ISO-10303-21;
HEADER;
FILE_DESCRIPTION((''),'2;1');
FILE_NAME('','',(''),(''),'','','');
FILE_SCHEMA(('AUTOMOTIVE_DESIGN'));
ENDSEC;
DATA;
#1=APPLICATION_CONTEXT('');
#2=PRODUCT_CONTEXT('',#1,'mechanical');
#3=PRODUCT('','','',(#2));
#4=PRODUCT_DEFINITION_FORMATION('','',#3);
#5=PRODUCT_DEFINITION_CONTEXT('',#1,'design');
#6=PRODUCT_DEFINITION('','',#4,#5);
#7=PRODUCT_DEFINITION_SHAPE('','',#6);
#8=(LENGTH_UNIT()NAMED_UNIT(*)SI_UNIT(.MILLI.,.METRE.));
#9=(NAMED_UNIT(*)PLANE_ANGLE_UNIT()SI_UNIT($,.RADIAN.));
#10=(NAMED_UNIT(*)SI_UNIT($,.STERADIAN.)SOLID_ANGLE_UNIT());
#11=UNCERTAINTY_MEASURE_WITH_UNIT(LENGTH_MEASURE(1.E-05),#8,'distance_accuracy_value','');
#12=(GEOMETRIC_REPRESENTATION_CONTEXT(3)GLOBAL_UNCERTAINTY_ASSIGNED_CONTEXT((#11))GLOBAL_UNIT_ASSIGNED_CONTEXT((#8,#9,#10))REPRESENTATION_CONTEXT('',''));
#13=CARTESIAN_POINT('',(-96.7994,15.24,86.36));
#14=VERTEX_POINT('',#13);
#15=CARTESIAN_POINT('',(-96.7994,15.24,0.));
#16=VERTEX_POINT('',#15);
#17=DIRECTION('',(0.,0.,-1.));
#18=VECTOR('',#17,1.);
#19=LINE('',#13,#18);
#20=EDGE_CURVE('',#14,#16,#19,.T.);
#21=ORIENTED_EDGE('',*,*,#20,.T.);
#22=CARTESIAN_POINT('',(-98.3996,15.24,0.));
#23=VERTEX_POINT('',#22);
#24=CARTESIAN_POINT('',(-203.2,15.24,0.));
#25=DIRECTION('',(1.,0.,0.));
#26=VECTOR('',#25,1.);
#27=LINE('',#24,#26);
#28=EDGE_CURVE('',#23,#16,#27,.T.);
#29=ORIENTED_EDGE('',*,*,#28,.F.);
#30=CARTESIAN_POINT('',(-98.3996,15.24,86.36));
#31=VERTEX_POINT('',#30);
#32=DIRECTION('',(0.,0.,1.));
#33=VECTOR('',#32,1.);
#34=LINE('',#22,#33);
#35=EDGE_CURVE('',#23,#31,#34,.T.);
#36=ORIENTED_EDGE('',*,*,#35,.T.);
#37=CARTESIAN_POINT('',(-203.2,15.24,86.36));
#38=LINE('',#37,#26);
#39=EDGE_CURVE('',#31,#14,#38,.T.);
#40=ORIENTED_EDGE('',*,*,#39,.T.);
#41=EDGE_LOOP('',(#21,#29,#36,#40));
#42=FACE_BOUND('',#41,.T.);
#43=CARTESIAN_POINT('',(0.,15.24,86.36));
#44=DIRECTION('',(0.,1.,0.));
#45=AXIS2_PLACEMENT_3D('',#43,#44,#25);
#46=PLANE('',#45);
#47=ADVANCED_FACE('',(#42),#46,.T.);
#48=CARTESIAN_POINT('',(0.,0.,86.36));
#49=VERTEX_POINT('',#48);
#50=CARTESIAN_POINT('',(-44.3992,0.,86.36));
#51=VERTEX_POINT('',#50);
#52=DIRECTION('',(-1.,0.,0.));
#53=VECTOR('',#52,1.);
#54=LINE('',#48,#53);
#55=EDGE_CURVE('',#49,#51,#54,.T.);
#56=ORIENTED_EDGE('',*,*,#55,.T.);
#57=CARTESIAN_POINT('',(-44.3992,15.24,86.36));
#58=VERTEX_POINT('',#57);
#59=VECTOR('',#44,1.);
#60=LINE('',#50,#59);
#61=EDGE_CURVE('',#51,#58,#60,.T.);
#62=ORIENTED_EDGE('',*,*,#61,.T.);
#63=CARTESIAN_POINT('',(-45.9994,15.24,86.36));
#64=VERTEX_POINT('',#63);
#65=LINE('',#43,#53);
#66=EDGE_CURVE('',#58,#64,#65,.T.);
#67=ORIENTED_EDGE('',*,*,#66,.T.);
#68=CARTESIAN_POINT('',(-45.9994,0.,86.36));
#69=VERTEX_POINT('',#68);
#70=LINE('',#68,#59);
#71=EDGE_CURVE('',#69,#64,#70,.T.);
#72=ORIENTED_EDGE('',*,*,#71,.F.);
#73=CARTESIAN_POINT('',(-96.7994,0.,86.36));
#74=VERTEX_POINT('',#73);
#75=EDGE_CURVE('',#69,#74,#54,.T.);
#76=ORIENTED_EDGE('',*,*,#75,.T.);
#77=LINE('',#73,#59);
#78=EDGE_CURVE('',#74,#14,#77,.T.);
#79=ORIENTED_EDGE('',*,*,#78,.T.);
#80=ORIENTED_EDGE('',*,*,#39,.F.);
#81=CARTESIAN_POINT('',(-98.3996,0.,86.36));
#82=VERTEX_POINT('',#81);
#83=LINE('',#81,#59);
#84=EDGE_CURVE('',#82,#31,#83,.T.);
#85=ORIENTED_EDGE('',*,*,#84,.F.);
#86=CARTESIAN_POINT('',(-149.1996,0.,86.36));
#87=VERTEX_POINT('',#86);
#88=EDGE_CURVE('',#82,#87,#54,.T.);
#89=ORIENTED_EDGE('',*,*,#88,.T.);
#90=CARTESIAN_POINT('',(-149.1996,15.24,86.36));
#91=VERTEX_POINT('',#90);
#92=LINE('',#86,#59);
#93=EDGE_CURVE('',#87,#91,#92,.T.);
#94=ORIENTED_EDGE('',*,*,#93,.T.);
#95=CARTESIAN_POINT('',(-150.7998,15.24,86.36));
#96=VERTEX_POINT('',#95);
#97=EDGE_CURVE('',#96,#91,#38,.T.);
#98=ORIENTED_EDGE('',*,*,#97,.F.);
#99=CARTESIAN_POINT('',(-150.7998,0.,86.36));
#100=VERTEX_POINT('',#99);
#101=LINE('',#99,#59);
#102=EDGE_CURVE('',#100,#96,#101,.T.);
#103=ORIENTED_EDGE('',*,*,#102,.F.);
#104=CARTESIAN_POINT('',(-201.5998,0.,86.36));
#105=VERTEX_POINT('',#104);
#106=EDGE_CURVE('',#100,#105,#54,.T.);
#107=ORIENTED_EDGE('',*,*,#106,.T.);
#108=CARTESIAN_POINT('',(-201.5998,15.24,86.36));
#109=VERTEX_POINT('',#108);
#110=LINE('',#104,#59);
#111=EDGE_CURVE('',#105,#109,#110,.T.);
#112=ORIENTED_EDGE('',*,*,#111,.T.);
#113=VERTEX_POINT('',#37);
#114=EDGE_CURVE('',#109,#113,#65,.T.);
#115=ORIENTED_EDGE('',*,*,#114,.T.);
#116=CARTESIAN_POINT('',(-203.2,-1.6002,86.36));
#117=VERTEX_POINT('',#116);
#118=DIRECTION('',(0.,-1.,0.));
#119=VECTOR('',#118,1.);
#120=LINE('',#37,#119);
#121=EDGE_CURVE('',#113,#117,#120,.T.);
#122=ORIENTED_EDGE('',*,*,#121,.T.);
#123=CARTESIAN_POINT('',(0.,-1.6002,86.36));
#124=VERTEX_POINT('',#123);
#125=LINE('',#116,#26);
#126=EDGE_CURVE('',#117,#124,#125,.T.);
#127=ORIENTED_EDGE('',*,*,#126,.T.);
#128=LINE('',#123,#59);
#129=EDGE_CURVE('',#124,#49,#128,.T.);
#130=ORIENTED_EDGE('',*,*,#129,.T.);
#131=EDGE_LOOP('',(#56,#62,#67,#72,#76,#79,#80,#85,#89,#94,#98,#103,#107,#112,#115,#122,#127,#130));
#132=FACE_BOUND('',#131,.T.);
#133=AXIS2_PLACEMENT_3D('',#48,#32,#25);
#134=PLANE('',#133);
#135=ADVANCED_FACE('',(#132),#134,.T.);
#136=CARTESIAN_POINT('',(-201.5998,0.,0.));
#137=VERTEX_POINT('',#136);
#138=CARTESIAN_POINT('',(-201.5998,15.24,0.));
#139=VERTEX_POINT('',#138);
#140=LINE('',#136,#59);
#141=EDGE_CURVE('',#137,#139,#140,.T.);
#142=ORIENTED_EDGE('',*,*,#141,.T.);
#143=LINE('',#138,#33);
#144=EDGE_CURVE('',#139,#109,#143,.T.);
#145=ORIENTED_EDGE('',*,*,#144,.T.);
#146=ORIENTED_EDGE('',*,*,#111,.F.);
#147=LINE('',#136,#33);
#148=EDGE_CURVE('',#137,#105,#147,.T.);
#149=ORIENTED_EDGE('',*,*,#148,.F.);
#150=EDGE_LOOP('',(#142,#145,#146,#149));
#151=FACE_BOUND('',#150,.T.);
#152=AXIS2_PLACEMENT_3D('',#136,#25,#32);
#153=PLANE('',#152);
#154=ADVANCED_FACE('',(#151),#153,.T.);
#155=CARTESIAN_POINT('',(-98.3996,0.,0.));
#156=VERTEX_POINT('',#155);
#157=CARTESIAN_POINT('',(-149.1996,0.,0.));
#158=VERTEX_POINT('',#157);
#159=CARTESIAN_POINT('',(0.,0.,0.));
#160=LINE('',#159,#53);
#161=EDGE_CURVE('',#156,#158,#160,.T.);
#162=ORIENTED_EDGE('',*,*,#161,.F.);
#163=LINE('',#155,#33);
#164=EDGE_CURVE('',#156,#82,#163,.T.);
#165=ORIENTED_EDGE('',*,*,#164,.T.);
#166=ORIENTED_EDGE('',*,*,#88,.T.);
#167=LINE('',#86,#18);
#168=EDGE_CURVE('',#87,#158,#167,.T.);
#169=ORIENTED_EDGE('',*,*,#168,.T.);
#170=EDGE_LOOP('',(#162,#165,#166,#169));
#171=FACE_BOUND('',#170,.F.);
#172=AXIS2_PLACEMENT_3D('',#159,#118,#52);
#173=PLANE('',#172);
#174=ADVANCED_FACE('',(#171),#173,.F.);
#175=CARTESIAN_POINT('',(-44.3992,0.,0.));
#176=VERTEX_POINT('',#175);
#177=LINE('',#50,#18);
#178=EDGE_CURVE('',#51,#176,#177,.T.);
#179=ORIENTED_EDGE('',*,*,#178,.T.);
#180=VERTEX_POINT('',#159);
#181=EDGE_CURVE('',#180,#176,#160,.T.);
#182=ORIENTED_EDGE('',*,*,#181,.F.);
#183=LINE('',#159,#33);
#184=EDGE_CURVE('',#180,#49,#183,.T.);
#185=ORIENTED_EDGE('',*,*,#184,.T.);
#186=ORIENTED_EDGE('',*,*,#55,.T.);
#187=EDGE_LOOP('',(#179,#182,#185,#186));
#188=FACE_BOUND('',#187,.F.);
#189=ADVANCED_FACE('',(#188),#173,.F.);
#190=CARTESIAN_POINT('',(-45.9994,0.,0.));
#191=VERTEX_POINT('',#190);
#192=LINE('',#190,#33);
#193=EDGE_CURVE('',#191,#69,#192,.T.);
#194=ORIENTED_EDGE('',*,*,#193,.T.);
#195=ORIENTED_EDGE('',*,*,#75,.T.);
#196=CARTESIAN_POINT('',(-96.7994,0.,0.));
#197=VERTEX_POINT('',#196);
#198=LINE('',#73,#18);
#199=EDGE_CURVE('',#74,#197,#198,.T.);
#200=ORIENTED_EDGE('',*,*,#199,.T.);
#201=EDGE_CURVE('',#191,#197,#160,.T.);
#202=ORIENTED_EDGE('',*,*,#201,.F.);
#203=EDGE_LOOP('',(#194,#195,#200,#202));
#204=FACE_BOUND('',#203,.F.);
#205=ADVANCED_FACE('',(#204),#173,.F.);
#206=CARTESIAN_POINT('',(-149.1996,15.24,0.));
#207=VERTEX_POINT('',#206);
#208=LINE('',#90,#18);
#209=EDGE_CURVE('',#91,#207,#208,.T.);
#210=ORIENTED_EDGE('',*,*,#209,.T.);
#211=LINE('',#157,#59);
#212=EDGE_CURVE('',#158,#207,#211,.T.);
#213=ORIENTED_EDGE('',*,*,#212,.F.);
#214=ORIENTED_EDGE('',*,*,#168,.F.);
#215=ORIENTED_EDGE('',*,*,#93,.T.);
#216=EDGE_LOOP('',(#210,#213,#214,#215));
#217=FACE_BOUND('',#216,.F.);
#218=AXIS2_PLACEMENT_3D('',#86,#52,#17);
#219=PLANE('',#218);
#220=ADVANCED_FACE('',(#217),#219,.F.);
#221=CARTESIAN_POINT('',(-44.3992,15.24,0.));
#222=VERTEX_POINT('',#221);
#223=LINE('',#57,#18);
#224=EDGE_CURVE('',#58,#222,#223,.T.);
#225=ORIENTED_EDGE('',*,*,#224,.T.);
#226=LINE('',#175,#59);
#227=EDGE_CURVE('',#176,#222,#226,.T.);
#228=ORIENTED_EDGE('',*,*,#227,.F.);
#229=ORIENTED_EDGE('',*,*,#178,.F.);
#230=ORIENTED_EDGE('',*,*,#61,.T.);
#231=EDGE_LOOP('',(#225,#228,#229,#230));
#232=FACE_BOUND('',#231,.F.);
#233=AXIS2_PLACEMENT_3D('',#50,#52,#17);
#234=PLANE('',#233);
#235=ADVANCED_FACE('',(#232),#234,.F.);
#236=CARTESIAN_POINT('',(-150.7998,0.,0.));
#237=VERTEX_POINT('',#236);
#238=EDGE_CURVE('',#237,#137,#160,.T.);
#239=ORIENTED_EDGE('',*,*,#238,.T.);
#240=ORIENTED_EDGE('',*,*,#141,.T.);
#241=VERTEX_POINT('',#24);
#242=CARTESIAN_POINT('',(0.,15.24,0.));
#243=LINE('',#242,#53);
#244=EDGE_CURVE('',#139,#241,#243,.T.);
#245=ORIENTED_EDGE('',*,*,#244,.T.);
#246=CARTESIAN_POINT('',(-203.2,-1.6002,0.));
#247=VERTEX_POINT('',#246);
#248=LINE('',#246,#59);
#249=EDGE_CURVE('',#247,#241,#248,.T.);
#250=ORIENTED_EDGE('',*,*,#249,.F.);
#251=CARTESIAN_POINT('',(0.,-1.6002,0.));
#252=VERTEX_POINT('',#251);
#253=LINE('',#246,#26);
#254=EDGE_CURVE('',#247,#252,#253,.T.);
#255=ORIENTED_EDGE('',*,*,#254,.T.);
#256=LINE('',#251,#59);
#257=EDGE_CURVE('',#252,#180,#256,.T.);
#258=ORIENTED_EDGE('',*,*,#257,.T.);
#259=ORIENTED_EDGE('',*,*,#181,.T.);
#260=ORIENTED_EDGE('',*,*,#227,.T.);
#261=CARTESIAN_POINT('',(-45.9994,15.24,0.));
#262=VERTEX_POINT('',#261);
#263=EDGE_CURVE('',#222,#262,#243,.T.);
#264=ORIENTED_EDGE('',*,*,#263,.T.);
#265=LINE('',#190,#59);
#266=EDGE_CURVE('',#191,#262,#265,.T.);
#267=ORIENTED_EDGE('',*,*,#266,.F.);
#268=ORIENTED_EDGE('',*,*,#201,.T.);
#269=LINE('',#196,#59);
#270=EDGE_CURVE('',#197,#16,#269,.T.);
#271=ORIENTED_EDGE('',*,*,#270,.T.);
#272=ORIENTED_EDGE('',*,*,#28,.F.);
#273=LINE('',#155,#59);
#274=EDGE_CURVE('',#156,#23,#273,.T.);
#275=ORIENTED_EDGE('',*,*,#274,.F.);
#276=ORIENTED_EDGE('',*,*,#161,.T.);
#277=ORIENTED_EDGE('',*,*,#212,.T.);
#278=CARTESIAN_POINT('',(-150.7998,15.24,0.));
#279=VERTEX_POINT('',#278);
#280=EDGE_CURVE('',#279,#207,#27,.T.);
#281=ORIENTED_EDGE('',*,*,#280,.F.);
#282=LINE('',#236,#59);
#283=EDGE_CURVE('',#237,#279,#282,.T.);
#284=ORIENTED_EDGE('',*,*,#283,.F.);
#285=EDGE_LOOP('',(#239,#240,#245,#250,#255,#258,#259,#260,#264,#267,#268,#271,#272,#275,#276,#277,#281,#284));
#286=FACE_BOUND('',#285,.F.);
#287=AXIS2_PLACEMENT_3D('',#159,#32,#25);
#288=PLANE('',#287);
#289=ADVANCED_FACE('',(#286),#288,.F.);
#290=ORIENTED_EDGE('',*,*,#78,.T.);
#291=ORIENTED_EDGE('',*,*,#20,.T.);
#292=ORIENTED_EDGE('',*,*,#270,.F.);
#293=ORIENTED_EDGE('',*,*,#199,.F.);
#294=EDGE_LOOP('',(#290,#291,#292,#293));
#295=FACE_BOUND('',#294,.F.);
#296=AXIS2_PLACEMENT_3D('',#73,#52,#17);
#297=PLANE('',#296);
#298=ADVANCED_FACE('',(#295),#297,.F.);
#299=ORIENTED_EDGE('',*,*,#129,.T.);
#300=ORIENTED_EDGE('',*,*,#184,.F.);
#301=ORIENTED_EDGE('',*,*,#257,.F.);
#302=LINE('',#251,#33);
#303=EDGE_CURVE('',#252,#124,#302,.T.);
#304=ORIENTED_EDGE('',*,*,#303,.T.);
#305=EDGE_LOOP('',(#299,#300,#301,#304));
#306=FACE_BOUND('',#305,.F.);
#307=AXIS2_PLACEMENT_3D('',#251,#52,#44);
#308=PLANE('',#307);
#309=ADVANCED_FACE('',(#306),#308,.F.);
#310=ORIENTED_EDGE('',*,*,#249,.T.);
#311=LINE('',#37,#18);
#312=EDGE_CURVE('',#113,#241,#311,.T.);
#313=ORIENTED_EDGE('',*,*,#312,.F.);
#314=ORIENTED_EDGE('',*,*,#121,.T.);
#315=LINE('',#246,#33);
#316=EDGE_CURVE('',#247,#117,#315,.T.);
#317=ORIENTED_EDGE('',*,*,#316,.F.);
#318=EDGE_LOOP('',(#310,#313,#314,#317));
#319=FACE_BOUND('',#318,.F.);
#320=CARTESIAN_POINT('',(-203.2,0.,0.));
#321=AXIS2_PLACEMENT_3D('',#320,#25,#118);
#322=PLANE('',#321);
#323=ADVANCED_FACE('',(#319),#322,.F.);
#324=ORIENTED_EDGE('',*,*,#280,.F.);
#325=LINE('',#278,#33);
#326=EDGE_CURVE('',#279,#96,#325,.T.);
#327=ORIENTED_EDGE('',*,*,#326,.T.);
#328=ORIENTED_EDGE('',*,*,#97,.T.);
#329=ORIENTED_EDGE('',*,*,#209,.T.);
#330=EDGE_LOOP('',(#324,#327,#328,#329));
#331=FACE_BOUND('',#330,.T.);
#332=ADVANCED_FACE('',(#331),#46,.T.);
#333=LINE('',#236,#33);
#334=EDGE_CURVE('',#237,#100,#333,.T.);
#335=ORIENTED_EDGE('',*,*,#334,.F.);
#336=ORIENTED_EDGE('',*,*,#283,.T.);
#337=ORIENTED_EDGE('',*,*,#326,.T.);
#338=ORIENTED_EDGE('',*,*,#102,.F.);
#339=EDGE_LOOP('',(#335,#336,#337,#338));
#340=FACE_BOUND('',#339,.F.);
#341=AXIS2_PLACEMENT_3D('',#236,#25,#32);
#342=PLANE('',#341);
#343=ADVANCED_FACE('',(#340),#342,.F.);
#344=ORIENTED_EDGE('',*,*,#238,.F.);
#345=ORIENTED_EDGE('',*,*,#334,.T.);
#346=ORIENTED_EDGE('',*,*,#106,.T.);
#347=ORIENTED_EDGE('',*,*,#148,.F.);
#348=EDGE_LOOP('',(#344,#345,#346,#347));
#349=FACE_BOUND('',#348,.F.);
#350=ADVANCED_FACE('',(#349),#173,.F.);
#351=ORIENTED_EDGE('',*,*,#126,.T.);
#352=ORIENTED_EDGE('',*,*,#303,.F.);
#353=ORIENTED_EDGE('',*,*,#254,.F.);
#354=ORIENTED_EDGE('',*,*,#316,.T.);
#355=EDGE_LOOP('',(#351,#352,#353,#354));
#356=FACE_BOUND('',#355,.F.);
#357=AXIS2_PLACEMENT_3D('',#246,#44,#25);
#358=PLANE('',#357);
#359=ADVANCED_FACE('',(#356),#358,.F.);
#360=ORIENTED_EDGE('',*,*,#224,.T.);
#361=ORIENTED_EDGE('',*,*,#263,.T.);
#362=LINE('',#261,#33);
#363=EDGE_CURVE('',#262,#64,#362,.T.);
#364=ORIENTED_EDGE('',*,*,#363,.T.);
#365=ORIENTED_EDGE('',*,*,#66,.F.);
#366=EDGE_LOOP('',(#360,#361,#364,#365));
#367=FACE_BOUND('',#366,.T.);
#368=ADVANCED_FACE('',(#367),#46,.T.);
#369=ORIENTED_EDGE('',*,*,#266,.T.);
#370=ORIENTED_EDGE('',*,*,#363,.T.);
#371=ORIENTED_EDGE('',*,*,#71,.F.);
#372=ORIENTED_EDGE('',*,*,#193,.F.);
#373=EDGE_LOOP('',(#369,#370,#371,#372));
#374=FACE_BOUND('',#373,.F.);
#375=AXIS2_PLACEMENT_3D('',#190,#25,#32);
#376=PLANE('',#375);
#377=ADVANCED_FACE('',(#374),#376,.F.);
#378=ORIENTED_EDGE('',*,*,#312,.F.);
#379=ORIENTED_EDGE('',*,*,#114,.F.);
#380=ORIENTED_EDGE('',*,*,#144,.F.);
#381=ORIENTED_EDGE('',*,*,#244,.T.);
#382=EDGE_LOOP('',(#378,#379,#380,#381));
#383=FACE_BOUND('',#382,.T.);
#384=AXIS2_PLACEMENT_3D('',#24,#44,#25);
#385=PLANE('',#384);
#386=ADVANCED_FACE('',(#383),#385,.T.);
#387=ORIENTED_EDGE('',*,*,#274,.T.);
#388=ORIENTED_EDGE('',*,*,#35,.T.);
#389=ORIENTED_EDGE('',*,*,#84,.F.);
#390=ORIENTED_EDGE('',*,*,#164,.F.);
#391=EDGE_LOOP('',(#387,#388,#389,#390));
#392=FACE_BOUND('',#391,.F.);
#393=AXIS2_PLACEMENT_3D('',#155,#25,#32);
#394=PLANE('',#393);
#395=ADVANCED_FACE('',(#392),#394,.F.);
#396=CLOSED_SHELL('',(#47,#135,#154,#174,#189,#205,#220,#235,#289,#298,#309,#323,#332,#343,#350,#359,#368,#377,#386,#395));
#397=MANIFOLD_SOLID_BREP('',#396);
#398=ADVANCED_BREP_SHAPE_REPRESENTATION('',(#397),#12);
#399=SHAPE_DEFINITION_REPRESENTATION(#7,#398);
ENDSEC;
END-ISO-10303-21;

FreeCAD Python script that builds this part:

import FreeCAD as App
import Part
import Sketcher
Q = App.Units.Quantity

doc = App.newDocument("Part")
body = doc.addObject("PartDesign::Body", "Body")

sketch1 = body.newObject("Sketcher::SketchObject", "Sketch")
sketch1.AttachmentSupport = (doc.getObject("XY_Plane"), [""])
sketch1.MapMode = "FlatFace"
sketch1.addGeometry([
    Part.LineSegment(App.Vector(0, -1.6, 0), App.Vector(0, 0, 0)),
    Part.LineSegment(App.Vector(0, 0, 0), App.Vector(-203.2, 0, 0)),
    Part.LineSegment(App.Vector(-203.2, 0, 0), App.Vector(-203.2, -1.6, 0)),
    Part.LineSegment(App.Vector(-203.2, -1.6, 0), App.Vector(0, -1.6, 0)),
], False)
sketch1.addConstraint([
    Sketcher.Constraint("Coincident", 0, 2, 1, 1),
    Sketcher.Constraint("Coincident", 1, 2, 2, 1),
    Sketcher.Constraint("Coincident", 2, 2, 3, 1),
    Sketcher.Constraint("Coincident", 3, 2, 0, 1),
    Sketcher.Constraint("Vertical", 0),
    Sketcher.Constraint("Horizontal", 1),
    Sketcher.Constraint("Vertical", 2),
    Sketcher.Constraint("Horizontal", 3),
    Sketcher.Constraint("Coincident", 0, 2, -1, 1),
    Sketcher.Constraint("DistanceX", 1, 2, 1, 1, Q("8 in")),
    Sketcher.Constraint("DistanceY", 0, 1, 0, 2, Q("0.063 in")),
])
pad1 = body.newObject("PartDesign::Pad", "Pad")
pad1.Profile = sketch1
pad1.Length = Q("3.4 in")

sketch2 = body.newObject("Sketcher::SketchObject", "Sketch001")
sketch2.AttachmentSupport = (doc.getObject("XZ_Plane"), [""])
sketch2.MapMode = "FlatFace"
sketch2.addGeometry([
    Part.LineSegment(App.Vector(-201.6, 86.4, 0), App.Vector(-201.6, 0, 0)),
    Part.LineSegment(App.Vector(-201.6, 0, 0), App.Vector(-203.2, 0, 0)),
    Part.LineSegment(App.Vector(-203.2, 0, 0), App.Vector(-203.2, 86.4, 0)),
    Part.LineSegment(App.Vector(-203.2, 86.4, 0), App.Vector(-201.6, 86.4, 0)),
], False)
sketch2.addConstraint([
    Sketcher.Constraint("Coincident", 0, 2, 1, 1),
    Sketcher.Constraint("Coincident", 1, 2, 2, 1),
    Sketcher.Constraint("Coincident", 2, 2, 3, 1),
    Sketcher.Constraint("Coincident", 3, 2, 0, 1),
    Sketcher.Constraint("Vertical", 0),
    Sketcher.Constraint("Horizontal", 1),
    Sketcher.Constraint("Vertical", 2),
    Sketcher.Constraint("Horizontal", 3),
    Sketcher.Constraint("PointOnObject", 0, 2, -1),
    Sketcher.Constraint("DistanceX", 1, 2, 1, 1, Q("0.063 in")),
    Sketcher.Constraint("DistanceY", 0, 2, 0, 1, Q("3.4 in")),
    Sketcher.Constraint("DistanceX", 1, 2, -1, 1, Q("8 in")),
])
pad2 = body.newObject("PartDesign::Pad", "Pad001")
pad2.Profile = sketch2
pad2.Length = Q("0.6 in")
pad2.Reversed = True

sketch3 = body.newObject("Sketcher::SketchObject", "Sketch002")
sketch3.AttachmentSupport = (doc.getObject("XZ_Plane"), [""])
sketch3.MapMode = "FlatFace"
sketch3.addGeometry([
    Part.LineSegment(App.Vector(-150.8, 0, 0), App.Vector(-150.8, 86.4, 0)),
    Part.LineSegment(App.Vector(-150.8, 86.4, 0), App.Vector(-149.2, 86.4, 0)),
    Part.LineSegment(App.Vector(-149.2, 86.4, 0), App.Vector(-149.2, 0, 0)),
    Part.LineSegment(App.Vector(-149.2, 0, 0), App.Vector(-150.8, 0, 0)),
], False)
sketch3.addConstraint([
    Sketcher.Constraint("Coincident", 0, 2, 1, 1),
    Sketcher.Constraint("Coincident", 1, 2, 2, 1),
    Sketcher.Constraint("Coincident", 2, 2, 3, 1),
    Sketcher.Constraint("Coincident", 3, 2, 0, 1),
    Sketcher.Constraint("Vertical", 0),
    Sketcher.Constraint("Horizontal", 1),
    Sketcher.Constraint("Vertical", 2),
    Sketcher.Constraint("Horizontal", 3),
    Sketcher.Constraint("PointOnObject", 2, 2, -1),
    Sketcher.Constraint("DistanceX", 1, 1, 1, 2, Q("0.063 in")),
    Sketcher.Constraint("DistanceY", 0, 1, 0, 2, Q("3.4 in")),
    Sketcher.Constraint("DistanceX", 0, 2, -1, 1, Q("5.937 in")),
])
pad3 = body.newObject("PartDesign::Pad", "Pad002")
pad3.Profile = sketch3
pad3.Length = Q("0.6 in")
pad3.Reversed = True

sketch4 = body.newObject("Sketcher::SketchObject", "Sketch003")
sketch4.AttachmentSupport = (doc.getObject("XZ_Plane"), [""])
sketch4.MapMode = "FlatFace"
sketch4.addGeometry([
    Part.LineSegment(App.Vector(-98.4, 0, 0), App.Vector(-98.4, 86.4, 0)),
    Part.LineSegment(App.Vector(-98.4, 86.4, 0), App.Vector(-96.8, 86.4, 0)),
    Part.LineSegment(App.Vector(-96.8, 86.4, 0), App.Vector(-96.8, 0, 0)),
    Part.LineSegment(App.Vector(-96.8, 0, 0), App.Vector(-98.4, 0, 0)),
], False)
sketch4.addConstraint([
    Sketcher.Constraint("Coincident", 0, 2, 1, 1),
    Sketcher.Constraint("Coincident", 1, 2, 2, 1),
    Sketcher.Constraint("Coincident", 2, 2, 3, 1),
    Sketcher.Constraint("Coincident", 3, 2, 0, 1),
    Sketcher.Constraint("Vertical", 0),
    Sketcher.Constraint("Horizontal", 1),
    Sketcher.Constraint("Vertical", 2),
    Sketcher.Constraint("Horizontal", 3),
    Sketcher.Constraint("PointOnObject", 2, 2, -1),
    Sketcher.Constraint("DistanceX", 1, 1, 1, 2, Q("0.063 in")),
    Sketcher.Constraint("DistanceY", 0, 1, 0, 2, Q("3.4 in")),
    Sketcher.Constraint("DistanceX", 0, 2, -1, 1, Q("3.874 in")),
])
pad4 = body.newObject("PartDesign::Pad", "Pad003")
pad4.Profile = sketch4
pad4.Length = Q("0.6 in")
pad4.Reversed = True

sketch5 = body.newObject("Sketcher::SketchObject", "Sketch004")
sketch5.AttachmentSupport = (doc.getObject("XZ_Plane"), [""])
sketch5.MapMode = "FlatFace"
sketch5.addGeometry([
    Part.LineSegment(App.Vector(-46, 86.4, 0), App.Vector(-44.4, 86.4, 0)),
    Part.LineSegment(App.Vector(-44.4, 86.4, 0), App.Vector(-44.4, 0, 0)),
    Part.LineSegment(App.Vector(-44.4, 0, 0), App.Vector(-46, 0, 0)),
    Part.LineSegment(App.Vector(-46, 0, 0), App.Vector(-46, 86.4, 0)),
], False)
sketch5.addConstraint([
    Sketcher.Constraint("Coincident", 0, 2, 1, 1),
    Sketcher.Constraint("Coincident", 1, 2, 2, 1),
    Sketcher.Constraint("Coincident", 2, 2, 3, 1),
    Sketcher.Constraint("Coincident", 3, 2, 0, 1),
    Sketcher.Constraint("Horizontal", 0),
    Sketcher.Constraint("Vertical", 1),
    Sketcher.Constraint("Horizontal", 2),
    Sketcher.Constraint("Vertical", 3),
    Sketcher.Constraint("PointOnObject", 1, 2, -1),
    Sketcher.Constraint("DistanceX", 0, 1, 0, 2, Q("0.063 in")),
    Sketcher.Constraint("DistanceY", 1, 2, 1, 1, Q("3.4 in")),
    Sketcher.Constraint("DistanceX", 0, 2, -1, 1, Q("1.748 in")),
])
pad5 = body.newObject("PartDesign::Pad", "Pad004")
pad5.Profile = sketch5
pad5.Length = Q("0.6 in")
pad5.Reversed = True

doc.recompute()
